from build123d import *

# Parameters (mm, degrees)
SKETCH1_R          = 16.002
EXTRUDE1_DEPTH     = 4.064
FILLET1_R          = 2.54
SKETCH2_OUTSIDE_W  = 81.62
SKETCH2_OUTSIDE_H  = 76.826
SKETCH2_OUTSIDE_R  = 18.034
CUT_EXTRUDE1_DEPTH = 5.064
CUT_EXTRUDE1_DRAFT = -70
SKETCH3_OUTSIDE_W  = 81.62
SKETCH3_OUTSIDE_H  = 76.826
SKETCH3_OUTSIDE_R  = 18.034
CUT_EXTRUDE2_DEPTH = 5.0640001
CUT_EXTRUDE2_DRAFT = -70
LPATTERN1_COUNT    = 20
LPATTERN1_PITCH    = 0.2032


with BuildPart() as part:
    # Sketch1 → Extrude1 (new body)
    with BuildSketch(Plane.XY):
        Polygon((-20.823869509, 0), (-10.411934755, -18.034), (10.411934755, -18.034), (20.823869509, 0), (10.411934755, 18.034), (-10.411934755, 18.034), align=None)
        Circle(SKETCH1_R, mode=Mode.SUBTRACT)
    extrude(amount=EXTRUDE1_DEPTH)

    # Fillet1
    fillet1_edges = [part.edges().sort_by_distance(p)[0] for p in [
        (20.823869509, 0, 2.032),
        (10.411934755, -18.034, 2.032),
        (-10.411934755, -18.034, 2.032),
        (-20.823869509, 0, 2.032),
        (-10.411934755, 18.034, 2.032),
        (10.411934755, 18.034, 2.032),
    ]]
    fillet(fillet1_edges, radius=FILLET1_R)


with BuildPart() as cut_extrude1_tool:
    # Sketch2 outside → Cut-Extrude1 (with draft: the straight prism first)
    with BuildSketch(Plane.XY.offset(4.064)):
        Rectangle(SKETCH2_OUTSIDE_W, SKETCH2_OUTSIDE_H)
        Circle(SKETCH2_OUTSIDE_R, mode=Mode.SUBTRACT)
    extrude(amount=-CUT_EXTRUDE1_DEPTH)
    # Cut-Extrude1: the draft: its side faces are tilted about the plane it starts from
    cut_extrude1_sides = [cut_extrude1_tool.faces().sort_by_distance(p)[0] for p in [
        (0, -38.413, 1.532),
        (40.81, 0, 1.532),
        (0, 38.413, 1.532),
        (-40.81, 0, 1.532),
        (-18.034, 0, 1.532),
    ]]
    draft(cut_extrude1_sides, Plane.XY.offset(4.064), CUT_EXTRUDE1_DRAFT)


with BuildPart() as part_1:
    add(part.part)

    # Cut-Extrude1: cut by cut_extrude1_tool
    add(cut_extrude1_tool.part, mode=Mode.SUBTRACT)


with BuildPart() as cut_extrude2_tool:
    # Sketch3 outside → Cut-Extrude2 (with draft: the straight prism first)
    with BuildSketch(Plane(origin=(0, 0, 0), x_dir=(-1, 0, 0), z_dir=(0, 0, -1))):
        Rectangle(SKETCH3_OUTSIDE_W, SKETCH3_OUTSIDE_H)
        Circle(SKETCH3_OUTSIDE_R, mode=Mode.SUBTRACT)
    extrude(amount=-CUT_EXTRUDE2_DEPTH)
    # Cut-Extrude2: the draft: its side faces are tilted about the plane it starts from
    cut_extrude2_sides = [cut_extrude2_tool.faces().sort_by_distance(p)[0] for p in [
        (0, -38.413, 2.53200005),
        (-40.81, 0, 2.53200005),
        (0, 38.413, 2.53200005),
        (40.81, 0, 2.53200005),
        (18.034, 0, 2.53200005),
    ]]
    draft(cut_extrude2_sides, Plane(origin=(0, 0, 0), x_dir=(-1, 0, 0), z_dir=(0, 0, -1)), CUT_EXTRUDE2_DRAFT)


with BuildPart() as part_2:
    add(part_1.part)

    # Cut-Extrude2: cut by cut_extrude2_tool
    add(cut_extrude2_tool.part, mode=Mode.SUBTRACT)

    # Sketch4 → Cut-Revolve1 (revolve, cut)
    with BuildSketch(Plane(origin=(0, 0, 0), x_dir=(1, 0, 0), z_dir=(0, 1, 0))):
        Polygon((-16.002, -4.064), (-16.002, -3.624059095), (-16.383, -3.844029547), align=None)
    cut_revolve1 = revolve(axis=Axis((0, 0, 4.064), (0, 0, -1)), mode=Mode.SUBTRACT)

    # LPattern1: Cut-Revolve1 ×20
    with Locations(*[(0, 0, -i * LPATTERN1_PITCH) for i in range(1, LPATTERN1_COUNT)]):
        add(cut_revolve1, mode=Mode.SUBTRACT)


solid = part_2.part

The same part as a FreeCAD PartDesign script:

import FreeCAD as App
import Part
import Sketcher
Q = App.Units.Quantity


def edges_at(feature, points):
    """Names of the edges that pass closest to the given points."""
    edges = feature.Shape.Edges
    near = lambda p: min(range(len(edges)), key=lambda i: edges[i].distToShape(Part.Vertex(*p))[0])
    return sorted({f"Edge{near(p) + 1}" for p in points})


def faces_at(feature, points):
    """Names of the faces that lie closest to the given points."""
    faces = feature.Shape.Faces
    near = lambda p: min(range(len(faces)), key=lambda i: faces[i].distToShape(Part.Vertex(*p))[0])
    return sorted({f"Face{near(p) + 1}" for p in points})


def add_polygon(sketch, points):
    """Adds a closed chain of lines whose ends are joined by coincident constraints."""
    first, n = sketch.GeometryCount, len(points)
    for a, b in zip(points, points[1:] + points[:1]):
        sketch.addGeometry(Part.LineSegment(App.Vector(*a, 0), App.Vector(*b, 0)), False)
    for i in range(n):
        sketch.addConstraint(Sketcher.Constraint("Coincident", first + i, 2, first + (i + 1) % n, 1))

doc = App.newDocument("Part")
body = doc.addObject("PartDesign::Body", "Body")

# Sketch on XY plane
sketch1 = doc.addObject("Sketcher::SketchObject", "Sketch")
body.addObject(sketch1)
sketch1.AttachmentSupport = (doc.XY_Plane, [""])
sketch1.MapMode = "FlatFace"
add_polygon(sketch1, [(-21, 0), (-10, -18), (10, -18), (21, 0), (10, 18), (-10, 18)])  # lines 0-5
sketch1.addGeometry(Part.Circle(App.Vector(0, 0, 0), App.Vector(0, 0, 1), 16), False)  # 6
sketch1.addConstraint(Sketcher.Constraint("Horizontal", 1))
sketch1.addConstraint(Sketcher.Constraint("Horizontal", 4))
sketch1.addConstraint(Sketcher.Constraint("Coincident", 6, 3, -1, 1))
sketch1.addConstraint(Sketcher.Constraint("Symmetric", 0, 2, 3, 2, -1, 1))
sketch1.addConstraint(Sketcher.Constraint("Symmetric", 2, 2, 5, 2, -1, 1))
sketch1.addConstraint(Sketcher.Constraint("PointOnObject", 2, 2, -1))
sketch1.addConstraint(Sketcher.Constraint("Parallel", 2, 5))
sketch1.addConstraint(Sketcher.Constraint("Vertical", 1, 2, 3, 2))
sketch1.addConstraint(Sketcher.Constraint("Diameter", 6, Q("1.26 in")))
sketch1.addConstraint(Sketcher.Constraint("Angle", 0, Q("-60 deg")))
sketch1.addConstraint(Sketcher.Constraint("DistanceY", 0, 2, -1, 1, Q("0.71 in")))
sketch1.addConstraint(Sketcher.Constraint("DistanceX", 1, 1, 1, 2, 20.82387))
pad1 = doc.addObject("PartDesign::Pad", "Pad")
body.addObject(pad1)
pad1.Profile = sketch1
pad1.Length = Q("0.16 in")
doc.recompute()

fillet = doc.addObject("PartDesign::Fillet", "Fillet")
body.addObject(fillet)
fillet.Base = (pad1, edges_at(pad1, [
    (20.824, 0, 2.032),
    (10.412, -18.034, 2.032),
    (-10.412, -18.034, 2.032),
    (-20.824, 0, 2.032),
    (-10.412, 18.034, 2.032),
    (10.412, 18.034, 2.032),
]))
fillet.Radius = Q("0.1 in")
body2 = doc.addObject("PartDesign::Body", "Body001")

# Sketch on XY plane
sketch2 = doc.addObject("Sketcher::SketchObject", "Sketch001")
body2.addObject(sketch2)
sketch2.AttachmentSupport = (doc.getObject("XY_Plane001"), [""])
sketch2.MapMode = "FlatFace"
sketch2.AttachmentOffset = App.Placement(App.Vector(0, 0, 0.16 * 25.4), App.Rotation())
add_polygon(sketch2, [(-41, 38), (-41, -38), (41, -38), (41, 38)])  # lines 0-3
sketch2.addGeometry(Part.Circle(App.Vector(0, 0, 0), App.Vector(0, 0, 1), 18), False)  # 4
sketch2.addConstraint(Sketcher.Constraint("Vertical", 0))
sketch2.addConstraint(Sketcher.Constraint("Horizontal", 1))
sketch2.addConstraint(Sketcher.Constraint("Vertical", 2))
sketch2.addConstraint(Sketcher.Constraint("Horizontal", 3))
sketch2.addConstraint(Sketcher.Constraint("Coincident", 4, 3, -1, 1))
sketch2.addConstraint(Sketcher.Constraint("Symmetric", 0, 2, 2, 2, -1, 1))
sketch2.addConstraint(Sketcher.Constraint("Diameter", 4, Q("1.42 in")))
sketch2.addConstraint(Sketcher.Constraint("DistanceX", 1, 1, 1, 2, 81.62))
sketch2.addConstraint(Sketcher.Constraint("DistanceY", 0, 2, 0, 1, 76.826))
pad2 = doc.addObject("PartDesign::Pad", "Pad001")
body2.addObject(pad2)
pad2.Profile = sketch2
pad2.Length = 5.064
pad2.Reversed = True
doc.recompute()

datumplane = doc.addObject("PartDesign::Plane", "DatumPlane")
body2.addObject(datumplane)
datumplane.AttachmentSupport = (doc.getObject("XY_Plane001"), [""])
datumplane.MapMode = "FlatFace"
datumplane.AttachmentOffset = App.Placement(App.Vector(0, 0, 0.16 * 25.4), App.Rotation())
draft = doc.addObject("PartDesign::Draft", "Draft")
body2.addObject(draft)
draft.Base = (pad2, faces_at(pad2, [
    (0, -38.413, 1.532),
    (40.81, 0, 1.532),
    (0, 38.413, 1.532),
    (-40.81, 0, 1.532),
    (-18.034, 0, 1.532),
]))
draft.NeutralPlane = (datumplane, [""])
draft.Angle = 70
draft.Reversed = True
doc.recompute()

boolean = doc.addObject("PartDesign::Boolean", "Boolean")
body.addObject(boolean)
boolean.Type = "Cut"
boolean.addObjects([body2])
body3 = doc.addObject("PartDesign::Body", "Body002")

# Sketch on XY plane
sketch3 = doc.addObject("Sketcher::SketchObject", "Sketch002")
body3.addObject(sketch3)
sketch3.AttachmentSupport = (doc.getObject("XY_Plane002"), [""])
sketch3.MapMode = "FlatFace"
add_polygon(sketch3, [(41, 38), (41, -38), (-41, -38), (-41, 38)])  # lines 0-3
sketch3.addGeometry(Part.Circle(App.Vector(0, 0, 0), App.Vector(0, 0, 1), 18), False)  # 4
sketch3.addConstraint(Sketcher.Constraint("Vertical", 0))
sketch3.addConstraint(Sketcher.Constraint("Horizontal", 1))
sketch3.addConstraint(Sketcher.Constraint("Vertical", 2))
sketch3.addConstraint(Sketcher.Constraint("Horizontal", 3))
sketch3.addConstraint(Sketcher.Constraint("Coincident", 4, 3, -1, 1))
sketch3.addConstraint(Sketcher.Constraint("Symmetric", 0, 2, 2, 2, -1, 1))
sketch3.addConstraint(Sketcher.Constraint("Diameter", 4, Q("1.42 in")))
sketch3.addConstraint(Sketcher.Constraint("DistanceX", 1, 2, 1, 1, 81.62))
sketch3.addConstraint(Sketcher.Constraint("DistanceY", 0, 2, 0, 1, 76.826))
pad3 = doc.addObject("PartDesign::Pad", "Pad002")
body3.addObject(pad3)
pad3.Profile = sketch3
pad3.Length = 5.064
doc.recompute()

draft2 = doc.addObject("PartDesign::Draft", "Draft001")
body3.addObject(draft2)
draft2.Base = (pad3, faces_at(pad3, [
    (0, -38.413, 2.532),
    (-40.81, 0, 2.532),
    (0, 38.413, 2.532),
    (40.81, 0, 2.532),
    (18.034, 0, 2.532),
]))
draft2.NeutralPlane = (doc.getObject("XY_Plane002"), [""])
draft2.Angle = 70
draft2.Reversed = False
doc.recompute()

boolean2 = doc.addObject("PartDesign::Boolean", "Boolean001")
body.addObject(boolean2)
boolean2.Type = "Cut"
boolean2.addObjects([body3])

# Sketch on XZ plane
sketch4 = doc.addObject("Sketcher::SketchObject", "Sketch003")
body.addObject(sketch4)
sketch4.AttachmentSupport = (doc.XZ_Plane, [""])
sketch4.MapMode = "FlatFace"
add_polygon(sketch4, [(-16, 4.06), (-16, 3.62), (-16.38, 3.84)])  # lines 0-2
sketch4.addConstraint(Sketcher.Constraint("Vertical", 0))
sketch4.addConstraint(Sketcher.Constraint("Equal", 1, 2))
sketch4.addConstraint(Sketcher.Constraint("Angle", 1, Q("150 deg")))
sketch4.addConstraint(Sketcher.Constraint("DistanceX", 0, 2, -1, 1, Q("0.63 in")))
sketch4.addConstraint(Sketcher.Constraint("DistanceY", -1, 1, 2, 2, Q("0.16 in")))
sketch4.addConstraint(Sketcher.Constraint("DistanceX", 1, 2, -1, 1, Q("0.645 in")))
groove = doc.addObject("PartDesign::Groove", "Groove")
body.addObject(groove)
groove.Profile = sketch4
groove.ReferenceAxis = (sketch4, ["V_Axis"])
groove.Angle = 360
doc.recompute()

linearpattern = doc.addObject("PartDesign::LinearPattern", "LinearPattern")
body.addObject(linearpattern)
linearpattern.Originals = [groove]
linearpattern.Direction = (doc.Z_Axis, [""])
linearpattern.Mode = "offset"
linearpattern.Offset = Q("0.008 in")
linearpattern.Occurrences = 20
linearpattern.Reversed = True
body.Tip = linearpattern

doc.recompute()
